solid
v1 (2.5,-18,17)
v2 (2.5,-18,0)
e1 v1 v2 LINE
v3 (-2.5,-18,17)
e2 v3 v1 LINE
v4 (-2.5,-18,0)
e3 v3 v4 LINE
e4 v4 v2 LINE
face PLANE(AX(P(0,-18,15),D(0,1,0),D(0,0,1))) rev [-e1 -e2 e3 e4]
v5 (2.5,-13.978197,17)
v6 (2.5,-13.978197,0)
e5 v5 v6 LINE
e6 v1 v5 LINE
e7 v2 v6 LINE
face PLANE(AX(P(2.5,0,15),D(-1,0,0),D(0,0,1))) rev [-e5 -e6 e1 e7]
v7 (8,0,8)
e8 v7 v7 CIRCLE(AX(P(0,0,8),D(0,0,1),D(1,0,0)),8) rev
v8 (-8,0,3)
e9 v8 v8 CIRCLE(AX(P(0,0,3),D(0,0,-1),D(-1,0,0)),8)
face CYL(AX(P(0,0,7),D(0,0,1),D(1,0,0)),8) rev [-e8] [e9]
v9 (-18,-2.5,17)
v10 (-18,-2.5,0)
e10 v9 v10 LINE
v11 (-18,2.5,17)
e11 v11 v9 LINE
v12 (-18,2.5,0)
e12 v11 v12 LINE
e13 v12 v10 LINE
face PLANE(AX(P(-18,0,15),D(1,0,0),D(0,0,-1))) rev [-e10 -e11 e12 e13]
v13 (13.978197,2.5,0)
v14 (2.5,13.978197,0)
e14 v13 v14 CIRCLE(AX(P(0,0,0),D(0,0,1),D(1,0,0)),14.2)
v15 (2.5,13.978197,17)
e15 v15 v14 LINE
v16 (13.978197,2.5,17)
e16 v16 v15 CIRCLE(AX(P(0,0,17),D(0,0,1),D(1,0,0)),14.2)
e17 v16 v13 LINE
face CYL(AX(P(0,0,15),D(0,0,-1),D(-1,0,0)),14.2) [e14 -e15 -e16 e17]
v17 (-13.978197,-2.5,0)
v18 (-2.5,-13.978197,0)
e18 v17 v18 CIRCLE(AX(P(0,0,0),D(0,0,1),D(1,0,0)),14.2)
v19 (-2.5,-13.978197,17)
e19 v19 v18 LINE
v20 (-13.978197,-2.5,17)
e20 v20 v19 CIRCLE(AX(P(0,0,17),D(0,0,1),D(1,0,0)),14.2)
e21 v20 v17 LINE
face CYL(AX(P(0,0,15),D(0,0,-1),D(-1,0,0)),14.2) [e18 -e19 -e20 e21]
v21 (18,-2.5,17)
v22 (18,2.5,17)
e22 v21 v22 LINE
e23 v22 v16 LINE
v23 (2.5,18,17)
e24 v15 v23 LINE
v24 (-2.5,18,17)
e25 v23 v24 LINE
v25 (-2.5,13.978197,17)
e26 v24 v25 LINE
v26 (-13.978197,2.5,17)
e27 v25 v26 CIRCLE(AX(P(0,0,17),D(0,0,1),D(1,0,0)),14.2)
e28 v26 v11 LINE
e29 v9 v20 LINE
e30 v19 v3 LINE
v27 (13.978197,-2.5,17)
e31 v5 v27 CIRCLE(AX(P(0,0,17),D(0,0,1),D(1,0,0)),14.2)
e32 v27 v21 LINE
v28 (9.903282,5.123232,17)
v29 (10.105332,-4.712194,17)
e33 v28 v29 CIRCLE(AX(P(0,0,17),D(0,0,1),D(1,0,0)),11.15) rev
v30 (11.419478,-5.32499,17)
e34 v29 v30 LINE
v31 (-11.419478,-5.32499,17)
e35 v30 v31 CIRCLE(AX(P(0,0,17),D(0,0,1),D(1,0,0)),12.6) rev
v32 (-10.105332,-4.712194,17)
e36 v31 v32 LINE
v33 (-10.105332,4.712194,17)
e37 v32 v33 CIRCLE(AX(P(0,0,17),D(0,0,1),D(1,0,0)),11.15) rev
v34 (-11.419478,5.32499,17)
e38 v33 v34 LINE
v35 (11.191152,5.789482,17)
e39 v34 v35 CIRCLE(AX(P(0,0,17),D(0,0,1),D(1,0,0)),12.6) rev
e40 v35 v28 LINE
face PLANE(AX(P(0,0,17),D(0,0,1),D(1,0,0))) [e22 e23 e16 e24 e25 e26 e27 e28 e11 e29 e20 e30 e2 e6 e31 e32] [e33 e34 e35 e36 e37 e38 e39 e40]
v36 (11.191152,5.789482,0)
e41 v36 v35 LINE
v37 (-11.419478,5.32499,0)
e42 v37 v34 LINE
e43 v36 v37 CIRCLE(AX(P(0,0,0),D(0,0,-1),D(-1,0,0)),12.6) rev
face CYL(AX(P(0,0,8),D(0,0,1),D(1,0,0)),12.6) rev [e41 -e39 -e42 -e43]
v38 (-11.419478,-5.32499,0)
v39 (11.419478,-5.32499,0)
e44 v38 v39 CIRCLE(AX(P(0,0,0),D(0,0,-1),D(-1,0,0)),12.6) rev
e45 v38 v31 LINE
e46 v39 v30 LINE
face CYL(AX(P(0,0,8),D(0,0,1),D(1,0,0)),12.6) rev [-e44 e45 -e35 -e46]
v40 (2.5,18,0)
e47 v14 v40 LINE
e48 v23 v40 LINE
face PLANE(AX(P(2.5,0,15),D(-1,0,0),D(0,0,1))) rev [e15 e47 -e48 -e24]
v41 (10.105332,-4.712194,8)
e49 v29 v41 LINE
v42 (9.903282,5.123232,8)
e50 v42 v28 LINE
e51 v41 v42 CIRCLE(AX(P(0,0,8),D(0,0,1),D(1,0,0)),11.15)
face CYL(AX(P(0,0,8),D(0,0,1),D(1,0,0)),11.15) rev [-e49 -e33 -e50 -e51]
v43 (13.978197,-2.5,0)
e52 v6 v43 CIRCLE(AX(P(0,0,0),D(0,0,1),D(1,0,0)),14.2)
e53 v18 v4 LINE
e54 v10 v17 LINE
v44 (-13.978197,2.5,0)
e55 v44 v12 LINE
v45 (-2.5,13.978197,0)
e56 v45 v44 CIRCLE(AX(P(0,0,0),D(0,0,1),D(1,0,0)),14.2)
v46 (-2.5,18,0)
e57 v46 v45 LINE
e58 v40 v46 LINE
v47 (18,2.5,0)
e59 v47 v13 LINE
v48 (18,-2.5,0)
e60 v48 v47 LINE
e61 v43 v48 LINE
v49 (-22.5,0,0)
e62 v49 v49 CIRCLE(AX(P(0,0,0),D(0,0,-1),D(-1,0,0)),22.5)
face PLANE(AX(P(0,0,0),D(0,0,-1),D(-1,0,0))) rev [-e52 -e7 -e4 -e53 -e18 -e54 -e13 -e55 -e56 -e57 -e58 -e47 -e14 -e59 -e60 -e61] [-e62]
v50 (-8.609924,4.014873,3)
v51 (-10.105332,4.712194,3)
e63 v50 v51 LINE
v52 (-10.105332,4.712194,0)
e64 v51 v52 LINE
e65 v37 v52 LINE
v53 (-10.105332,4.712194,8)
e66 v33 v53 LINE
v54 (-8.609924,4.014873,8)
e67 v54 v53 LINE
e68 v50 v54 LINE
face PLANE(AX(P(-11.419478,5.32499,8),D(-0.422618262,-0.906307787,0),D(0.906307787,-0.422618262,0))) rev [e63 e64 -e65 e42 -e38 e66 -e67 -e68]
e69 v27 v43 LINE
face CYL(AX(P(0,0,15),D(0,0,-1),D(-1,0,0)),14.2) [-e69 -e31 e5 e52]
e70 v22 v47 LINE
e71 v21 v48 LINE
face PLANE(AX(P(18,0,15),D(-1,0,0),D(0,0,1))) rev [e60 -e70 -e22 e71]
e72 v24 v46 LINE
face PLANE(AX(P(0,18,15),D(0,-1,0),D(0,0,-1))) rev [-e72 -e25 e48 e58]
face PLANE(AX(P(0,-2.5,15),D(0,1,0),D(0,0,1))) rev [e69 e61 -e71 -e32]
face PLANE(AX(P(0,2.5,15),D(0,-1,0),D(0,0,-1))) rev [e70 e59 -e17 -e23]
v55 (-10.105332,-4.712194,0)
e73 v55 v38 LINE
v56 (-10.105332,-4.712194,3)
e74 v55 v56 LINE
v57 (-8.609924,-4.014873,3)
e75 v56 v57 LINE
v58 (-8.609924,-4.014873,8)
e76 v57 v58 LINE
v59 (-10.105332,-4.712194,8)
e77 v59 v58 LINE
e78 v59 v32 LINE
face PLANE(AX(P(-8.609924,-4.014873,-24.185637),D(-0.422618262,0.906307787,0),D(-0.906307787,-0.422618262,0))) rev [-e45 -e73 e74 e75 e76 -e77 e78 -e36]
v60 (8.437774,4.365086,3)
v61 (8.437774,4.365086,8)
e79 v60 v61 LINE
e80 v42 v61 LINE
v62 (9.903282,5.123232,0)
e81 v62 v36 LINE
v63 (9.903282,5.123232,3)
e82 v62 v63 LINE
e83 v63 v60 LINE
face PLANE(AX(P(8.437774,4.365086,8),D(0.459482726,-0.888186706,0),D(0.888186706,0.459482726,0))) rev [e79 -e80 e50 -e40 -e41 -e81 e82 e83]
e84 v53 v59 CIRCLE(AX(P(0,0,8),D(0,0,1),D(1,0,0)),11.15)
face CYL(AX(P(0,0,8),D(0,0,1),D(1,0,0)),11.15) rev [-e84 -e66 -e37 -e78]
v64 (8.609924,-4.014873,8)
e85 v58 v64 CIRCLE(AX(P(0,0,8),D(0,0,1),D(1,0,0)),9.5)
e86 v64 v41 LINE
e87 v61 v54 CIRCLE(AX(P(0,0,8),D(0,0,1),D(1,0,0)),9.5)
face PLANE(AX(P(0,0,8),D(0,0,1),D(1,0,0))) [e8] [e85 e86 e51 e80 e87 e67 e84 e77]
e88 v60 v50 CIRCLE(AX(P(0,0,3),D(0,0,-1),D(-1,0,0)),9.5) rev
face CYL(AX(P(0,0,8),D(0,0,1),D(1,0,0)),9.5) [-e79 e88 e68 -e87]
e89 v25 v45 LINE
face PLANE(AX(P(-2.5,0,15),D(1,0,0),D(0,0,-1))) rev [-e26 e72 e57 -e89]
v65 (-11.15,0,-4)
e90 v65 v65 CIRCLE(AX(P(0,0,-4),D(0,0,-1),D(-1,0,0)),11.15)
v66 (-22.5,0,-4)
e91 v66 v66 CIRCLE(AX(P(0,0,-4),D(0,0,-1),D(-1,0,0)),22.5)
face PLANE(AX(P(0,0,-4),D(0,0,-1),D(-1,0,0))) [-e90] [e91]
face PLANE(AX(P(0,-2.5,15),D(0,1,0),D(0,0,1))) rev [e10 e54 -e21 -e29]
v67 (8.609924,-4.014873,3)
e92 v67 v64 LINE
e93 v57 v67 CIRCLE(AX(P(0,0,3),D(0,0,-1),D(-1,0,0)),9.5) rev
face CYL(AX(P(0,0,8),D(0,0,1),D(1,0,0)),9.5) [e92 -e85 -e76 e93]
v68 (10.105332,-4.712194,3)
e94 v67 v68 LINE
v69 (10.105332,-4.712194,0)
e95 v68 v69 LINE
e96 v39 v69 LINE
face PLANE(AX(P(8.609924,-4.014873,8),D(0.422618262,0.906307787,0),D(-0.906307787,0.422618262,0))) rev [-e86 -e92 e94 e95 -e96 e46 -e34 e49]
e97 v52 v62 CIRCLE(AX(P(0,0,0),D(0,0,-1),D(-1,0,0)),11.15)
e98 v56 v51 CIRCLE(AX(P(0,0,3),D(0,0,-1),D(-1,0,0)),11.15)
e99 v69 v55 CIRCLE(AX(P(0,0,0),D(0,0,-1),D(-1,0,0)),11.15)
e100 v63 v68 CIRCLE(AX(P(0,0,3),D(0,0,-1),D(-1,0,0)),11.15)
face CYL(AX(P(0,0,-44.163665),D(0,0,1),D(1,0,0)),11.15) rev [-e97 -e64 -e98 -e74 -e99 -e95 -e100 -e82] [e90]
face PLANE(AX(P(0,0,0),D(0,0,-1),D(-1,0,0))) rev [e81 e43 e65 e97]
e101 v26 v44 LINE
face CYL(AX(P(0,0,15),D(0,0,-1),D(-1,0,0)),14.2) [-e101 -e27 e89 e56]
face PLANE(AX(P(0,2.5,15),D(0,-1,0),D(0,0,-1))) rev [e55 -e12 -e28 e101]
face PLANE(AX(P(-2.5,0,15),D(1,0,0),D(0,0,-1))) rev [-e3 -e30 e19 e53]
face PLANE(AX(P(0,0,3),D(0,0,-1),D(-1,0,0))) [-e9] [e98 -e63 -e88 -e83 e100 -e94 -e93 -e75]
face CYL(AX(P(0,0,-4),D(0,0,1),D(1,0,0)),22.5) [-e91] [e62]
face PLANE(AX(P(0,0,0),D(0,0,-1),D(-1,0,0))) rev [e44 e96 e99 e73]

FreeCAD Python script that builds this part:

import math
import FreeCAD as App
import Part
import Sketcher
Q = App.Units.Quantity

doc = App.newDocument("Part")
params = doc.addObject("Spreadsheet::Sheet", "Params")
for row, (alias, value) in enumerate([
    ("sketch1_diameter", "22.3 mm"),
    ("sketch1_radius", "14.2 mm"),
    ("sketch1_width", "5 mm"),
    ("pad1_length", "15 mm"),
    ("sketch2_diameter", "16 mm"),
    ("sketch2_diameter2", "22.3 mm"),
    ("pad2_length", "8 mm"),
    ("sketch3_diameter", "45 mm"),
    ("sketch3_radius", "14.2 mm"),
    ("pad3_length", "4 mm"),
    ("sketch4_diameter", "28.4 mm"),
    ("sketch4_diameter2", "22.3 mm"),
    ("pad4_length", "4 mm"),
    ("sketch5_diameter", "16 mm"),
    ("sketch5_diameter2", "22.3 mm"),
    ("pad5_length", "4 mm"),
    ("sketch6_radius", "12.6 mm"),
    ("sketch6_radius2", "9.5 mm"),
    ("pocket1_length", "7 mm"),
    ("sketch7_radius", "9.5 mm"),
    ("sketch7_radius2", "12.6 mm"),
    ("pocket2_length", "8 mm"),
    ("sketch8_radius", "14.2 mm"),
    ("sketch8_width", "5 mm"),
    ("pocket3_length", "4 mm"),
    ("sketch9_radius", "12.6 mm"),
    ("sketch9_radius2", "9.5 mm"),
    ("pocket4_length", "11 mm"),
    ("sketch10_diameter", "22.3 mm"),
    ("pocket5_length", "3 mm"),
    ("sketch11_radius", "14.2 mm"),
    ("sketch11_radius2", "12.6 mm"),
    ("sketch11_width", "5 mm"),
    ("sketch11_radius3", "11.15 mm"),
    ("pad6_length", "6 mm"),
], start=1):
    params.set(f"A{row}", alias)
    params.set(f"B{row}", "=" + value)
    params.setAlias(f"B{row}", alias)

body = doc.addObject("PartDesign::Body", "Body")

sketch1 = body.newObject("Sketcher::SketchObject", "Sketch")
sketch1.AttachmentSupport = (doc.getObject("XY_Plane"), [""])
sketch1.MapMode = "FlatFace"
sketch1.addGeometry(Part.LineSegment(App.Vector(-2.5, 18, 0), App.Vector(-2.5, 14, 0)), False)
sketch1.addGeometry(Part.ArcOfCircle(Part.Circle(App.Vector(0, 0, 0), App.Vector(0, 0, 1), 14.2), math.radians(100), math.radians(170)), False)
sketch1.addGeometry(Part.LineSegment(App.Vector(-14, 2.5, 0), App.Vector(-18, 2.5, 0)), False)
sketch1.addGeometry(Part.LineSegment(App.Vector(-18, 2.5, 0), App.Vector(-18, -2.5, 0)), False)
sketch1.addGeometry(Part.LineSegment(App.Vector(-18, -2.5, 0), App.Vector(-14, -2.5, 0)), False)
sketch1.addGeometry(Part.ArcOfCircle(Part.Circle(App.Vector(0, 0, 0), App.Vector(0, 0, 1), 14.2), math.radians(-170), math.radians(-100)), False)
sketch1.addGeometry(Part.LineSegment(App.Vector(-2.5, -14, 0), App.Vector(-2.5, -18, 0)), False)
sketch1.addGeometry(Part.LineSegment(App.Vector(-2.5, -18, 0), App.Vector(2.5, -18, 0)), False)
sketch1.addGeometry(Part.LineSegment(App.Vector(2.5, -18, 0), App.Vector(2.5, -14, 0)), False)
sketch1.addGeometry(Part.ArcOfCircle(Part.Circle(App.Vector(0, 0, 0), App.Vector(0, 0, 1), 14.2), math.radians(-80), math.radians(-10)), False)
sketch1.addGeometry(Part.LineSegment(App.Vector(14, -2.5, 0), App.Vector(18, -2.5, 0)), False)
sketch1.addGeometry(Part.LineSegment(App.Vector(18, -2.5, 0), App.Vector(18, 2.5, 0)), False)
sketch1.addGeometry(Part.LineSegment(App.Vector(18, 2.5, 0), App.Vector(14, 2.5, 0)), False)
sketch1.addGeometry(Part.ArcOfCircle(Part.Circle(App.Vector(0, 0, 0), App.Vector(0, 0, 1), 14.2), math.radians(10), math.radians(80)), False)
sketch1.addGeometry(Part.LineSegment(App.Vector(2.5, 14, 0), App.Vector(2.5, 18, 0)), False)
sketch1.addGeometry(Part.LineSegment(App.Vector(2.5, 18, 0), App.Vector(-2.5, 18, 0)), False)
sketch1.addGeometry(Part.Circle(App.Vector(0, 0, 0), App.Vector(0, 0, 1), 11.2), False)
sketch1.addConstraint(Sketcher.Constraint("Coincident", 0, 2, 1, 1))
sketch1.addConstraint(Sketcher.Constraint("Coincident", 1, 2, 2, 1))
sketch1.addConstraint(Sketcher.Constraint("Coincident", 2, 2, 3, 1))
sketch1.addConstraint(Sketcher.Constraint("Coincident", 3, 2, 4, 1))
sketch1.addConstraint(Sketcher.Constraint("Coincident", 4, 2, 5, 1))
sketch1.addConstraint(Sketcher.Constraint("Coincident", 5, 2, 6, 1))
sketch1.addConstraint(Sketcher.Constraint("Coincident", 6, 2, 7, 1))
sketch1.addConstraint(Sketcher.Constraint("Coincident", 7, 2, 8, 1))
sketch1.addConstraint(Sketcher.Constraint("Coincident", 8, 2, 9, 1))
sketch1.addConstraint(Sketcher.Constraint("Coincident", 9, 2, 10, 1))
sketch1.addConstraint(Sketcher.Constraint("Coincident", 10, 2, 11, 1))
sketch1.addConstraint(Sketcher.Constraint("Coincident", 11, 2, 12, 1))
sketch1.addConstraint(Sketcher.Constraint("Coincident", 12, 2, 13, 1))
sketch1.addConstraint(Sketcher.Constraint("Coincident", 13, 2, 14, 1))
sketch1.addConstraint(Sketcher.Constraint("Coincident", 14, 2, 15, 1))
sketch1.addConstraint(Sketcher.Constraint("Coincident", 15, 2, 0, 1))
sketch1.addConstraint(Sketcher.Constraint("Vertical", 0))
sketch1.addConstraint(Sketcher.Constraint("Horizontal", 2))
sketch1.addConstraint(Sketcher.Constraint("Vertical", 3))
sketch1.addConstraint(Sketcher.Constraint("Horizontal", 4))
sketch1.addConstraint(Sketcher.Constraint("Vertical", 6))
sketch1.addConstraint(Sketcher.Constraint("Horizontal", 7))
sketch1.addConstraint(Sketcher.Constraint("Vertical", 8))
sketch1.addConstraint(Sketcher.Constraint("Horizontal", 10))
sketch1.addConstraint(Sketcher.Constraint("Vertical", 11))
sketch1.addConstraint(Sketcher.Constraint("Horizontal", 12))
sketch1.addConstraint(Sketcher.Constraint("Vertical", 14))
sketch1.addConstraint(Sketcher.Constraint("Horizontal", 15))
sketch1.addConstraint(Sketcher.Constraint("Coincident", 1, 3, -1, 1))
sketch1.addConstraint(Sketcher.Constraint("Coincident", 5, 3, -1, 1))
sketch1.addConstraint(Sketcher.Constraint("Coincident", 9, 3, -1, 1))
sketch1.addConstraint(Sketcher.Constraint("Coincident", 13, 3, -1, 1))
sketch1.addConstraint(Sketcher.Constraint("Coincident", 16, 3, -1, 1))
sketch1.addConstraint(Sketcher.Constraint("Equal", 1, 5))
sketch1.addConstraint(Sketcher.Constraint("Equal", 5, 9))
sketch1.addConstraint(Sketcher.Constraint("Equal", 9, 13))
sketch1.addConstraint(Sketcher.Constraint("Symmetric", 2, 2, 10, 2, -1, 1))
sketch1.addConstraint(Sketcher.Constraint("Symmetric", 6, 2, 14, 2, -1, 1))
sketch1.addConstraint(Sketcher.Constraint("Horizontal", 5, 2, 8, 2))
sketch1.addConstraint(Sketcher.Constraint("Horizontal", 4, 2, 9, 2))
sketch1.addConstraint(Sketcher.Constraint("Horizontal", 2, 2, 11, 2))
sketch1.addConstraint(Sketcher.Constraint("Horizontal", 0, 2, 13, 2))
sketch1.addConstraint(Sketcher.Constraint("Equal", 12, 0))
sketch1.addConstraint(Sketcher.Constraint("Equal", 15, 3))
sketch1.addConstraint(Sketcher.Constraint("Diameter", 16, 22.3))
sketch1.addConstraint(Sketcher.Constraint("Radius", 1, 14.2))
sketch1.addConstraint(Sketcher.Constraint("DistanceX", 7, 1, 7, 2, 5.0))
sketch1.addConstraint(Sketcher.Constraint("DistanceX", 2, 2, -1, 1, 18.0))
sketch1.setExpression("Constraints[44]", "Params.sketch1_diameter")
sketch1.setExpression("Constraints[45]", "Params.sketch1_radius")
sketch1.setExpression("Constraints[46]", "Params.sketch1_width")
pad1 = body.newObject("PartDesign::Pad", "Pad")
pad1.Profile = sketch1
pad1.setExpression("Length", "Params.pad1_length")

sketch2 = body.newObject("Sketcher::SketchObject", "Sketch001")
sketch2.AttachmentSupport = (doc.getObject("XY_Plane"), [""])
sketch2.MapMode = "FlatFace"
sketch2.AttachmentOffset = App.Placement(App.Vector(0, 0, 7), App.Rotation())
sketch2.addGeometry(Part.Circle(App.Vector(0, 0, 0), App.Vector(0, 0, 1), 11), False)
sketch2.addGeometry(Part.Circle(App.Vector(0, 0, 0), App.Vector(0, 0, 1), 8), False)
sketch2.addConstraint(Sketcher.Constraint("Coincident", 0, 3, -1, 1))
sketch2.addConstraint(Sketcher.Constraint("Coincident", 1, 3, -1, 1))
sketch2.addConstraint(Sketcher.Constraint("Diameter", 1, 16.0))
sketch2.addConstraint(Sketcher.Constraint("Diameter", 0, 22.3))
sketch2.setExpression("Constraints[2]", "Params.sketch2_diameter")
sketch2.setExpression("Constraints[3]", "Params.sketch2_diameter2")
pad2 = body.newObject("PartDesign::Pad", "Pad001")
pad2.Profile = sketch2
pad2.setExpression("Length", "Params.pad2_length")
body2 = doc.addObject("PartDesign::Body", "Body001")

sketch3 = body2.newObject("Sketcher::SketchObject", "Sketch002")
sketch3.AttachmentSupport = (doc.getObject("XY_Plane001"), [""])
sketch3.MapMode = "FlatFace"
sketch3.addGeometry(Part.Circle(App.Vector(0, 0, 0), App.Vector(0, 0, 1), 22), False)
sketch3.addGeometry(Part.ArcOfCircle(Part.Circle(App.Vector(0, 0, 0), App.Vector(0, 0, 1), 14), math.radians(10), math.radians(80)), False)
sketch3.addGeometry(Part.ArcOfCircle(Part.Circle(App.Vector(0, 0, 0), App.Vector(0, 0, 1), 14), math.radians(80), math.radians(100)), False)
sketch3.addGeometry(Part.ArcOfCircle(Part.Circle(App.Vector(0, 0, 0), App.Vector(0, 0, 1), 14), math.radians(100), math.radians(170)), False)
sketch3.addGeometry(Part.ArcOfCircle(Part.Circle(App.Vector(0, 0, 0), App.Vector(0, 0, 1), 14), math.radians(170), math.radians(190)), False)
sketch3.addGeometry(Part.ArcOfCircle(Part.Circle(App.Vector(0, 0, 0), App.Vector(0, 0, 1), 14), math.radians(-170), math.radians(-100)), False)
sketch3.addGeometry(Part.ArcOfCircle(Part.Circle(App.Vector(0, 0, 0), App.Vector(0, 0, 1), 14), math.radians(-100), math.radians(-80)), False)
sketch3.addGeometry(Part.ArcOfCircle(Part.Circle(App.Vector(0, 0, 0), App.Vector(0, 0, 1), 14), math.radians(-80), math.radians(-10)), False)
sketch3.addGeometry(Part.ArcOfCircle(Part.Circle(App.Vector(0, 0, 0), App.Vector(0, 0, 1), 14), math.radians(-10), math.radians(10)), False)
sketch3.addConstraint(Sketcher.Constraint("Tangent", 1, 2, 2, 1))
sketch3.addConstraint(Sketcher.Constraint("Tangent", 2, 2, 3, 1))
sketch3.addConstraint(Sketcher.Constraint("Tangent", 3, 2, 4, 1))
sketch3.addConstraint(Sketcher.Constraint("Tangent", 4, 2, 5, 1))
sketch3.addConstraint(Sketcher.Constraint("Tangent", 5, 2, 6, 1))
sketch3.addConstraint(Sketcher.Constraint("Tangent", 6, 2, 7, 1))
sketch3.addConstraint(Sketcher.Constraint("Tangent", 7, 2, 8, 1))
sketch3.addConstraint(Sketcher.Constraint("Tangent", 8, 2, 1, 1))
sketch3.addConstraint(Sketcher.Constraint("Coincident", 0, 3, -1, 1))
sketch3.addConstraint(Sketcher.Constraint("Coincident", 1, 3, -1, 1))
sketch3.addConstraint(Sketcher.Constraint("Coincident", 3, 3, -1, 1))
sketch3.addConstraint(Sketcher.Constraint("Coincident", 5, 3, -1, 1))
sketch3.addConstraint(Sketcher.Constraint("Equal", 5, 6))
sketch3.addConstraint(Sketcher.Constraint("Horizontal", 1, 2, 2, 2))
sketch3.addConstraint(Sketcher.Constraint("Horizontal", 5, 2, 6, 2))
sketch3.addConstraint(Sketcher.Constraint("Horizontal", 4, 2, 7, 2))
sketch3.addConstraint(Sketcher.Constraint("Horizontal", 3, 2, 8, 2))
sketch3.addConstraint(Sketcher.Constraint("Vertical", 3, 2, 4, 2))
sketch3.addConstraint(Sketcher.Constraint("Vertical", 2, 2, 5, 2))
sketch3.addConstraint(Sketcher.Constraint("Diameter", 0, 45.0))
sketch3.addConstraint(Sketcher.Constraint("Radius", 1, 14.2))
sketch3.addConstraint(Sketcher.Constraint("DistanceX", 2, 2, 1, 2, 5.0))
sketch3.addConstraint(Sketcher.Constraint("DistanceY", 4, 2, 3, 2, 5.0))
sketch3.setExpression("Constraints[19]", "Params.sketch3_diameter")
sketch3.setExpression("Constraints[20]", "Params.sketch3_radius")
pad3 = body2.newObject("PartDesign::Pad", "Pad002")
pad3.Profile = sketch3
pad3.setExpression("Length", "Params.pad3_length")
pad3.Reversed = True
doc.recompute()

boolean = body.newObject("PartDesign::Boolean", "Boolean")
boolean.Type = "Fuse"
boolean.addObjects([body2])

sketch4 = body.newObject("Sketcher::SketchObject", "Sketch003")
sketch4.AttachmentSupport = (doc.getObject("XY_Plane"), [""])
sketch4.MapMode = "FlatFace"
sketch4.AttachmentOffset = App.Placement(App.Vector(0, 0, -4), App.Rotation())
sketch4.addGeometry(Part.Circle(App.Vector(0, 0, 0), App.Vector(0, 0, 1), 14), False)
sketch4.addGeometry(Part.Circle(App.Vector(0, 0, 0), App.Vector(0, 0, 1), 11), False)
sketch4.addConstraint(Sketcher.Constraint("Coincident", 0, 3, -1, 1))
sketch4.addConstraint(Sketcher.Constraint("Coincident", 1, 3, -1, 1))
sketch4.addConstraint(Sketcher.Constraint("Diameter", 0, 28.4))
sketch4.addConstraint(Sketcher.Constraint("Diameter", 1, 22.3))
sketch4.setExpression("Constraints[2]", "Params.sketch4_diameter")
sketch4.setExpression("Constraints[3]", "Params.sketch4_diameter2")
pad4 = body.newObject("PartDesign::Pad", "Pad003")
pad4.Profile = sketch4
pad4.setExpression("Length", "Params.pad4_length")

sketch5 = body.newObject("Sketcher::SketchObject", "Sketch004")
sketch5.AttachmentSupport = (doc.getObject("XY_Plane"), [""])
sketch5.MapMode = "FlatFace"
sketch5.AttachmentOffset = App.Placement(App.Vector(0, 0, 3), App.Rotation())
sketch5.addGeometry(Part.Circle(App.Vector(0, 0, 0), App.Vector(0, 0, 1), 11), False)
sketch5.addGeometry(Part.Circle(App.Vector(0, 0, 0), App.Vector(0, 0, 1), 8), False)
sketch5.addConstraint(Sketcher.Constraint("Coincident", 0, 3, -1, 1))
sketch5.addConstraint(Sketcher.Constraint("Coincident", 1, 3, -1, 1))
sketch5.addConstraint(Sketcher.Constraint("Diameter", 1, 16.0))
sketch5.addConstraint(Sketcher.Constraint("Diameter", 0, 22.3))
sketch5.setExpression("Constraints[2]", "Params.sketch5_diameter")
sketch5.setExpression("Constraints[3]", "Params.sketch5_diameter2")
pad5 = body.newObject("PartDesign::Pad", "Pad004")
pad5.Profile = sketch5
pad5.setExpression("Length", "Params.pad5_length")

sketch6 = body.newObject("Sketcher::SketchObject", "Sketch005")
sketch6.AttachmentSupport = (doc.getObject("XY_Plane"), [""])
sketch6.MapMode = "FlatFace"
sketch6.AttachmentOffset = App.Placement(App.Vector(0, 0, 15), App.Rotation())
sketch6.addGeometry(Part.LineSegment(App.Vector(-8.4, -4.4, 0), App.Vector(-11.2, -5.8, 0)), False)
sketch6.addGeometry(Part.ArcOfCircle(Part.Circle(App.Vector(0, 0, 0), App.Vector(0, 0, 1), 12.6), math.radians(-153), math.radians(-25)), False)
sketch6.addGeometry(Part.LineSegment(App.Vector(11.4, -5.3, 0), App.Vector(8.6, -4, 0)), False)
sketch6.addGeometry(Part.ArcOfCircle(Part.Circle(App.Vector(0, 0, 0), App.Vector(0, 0, 1), 9.5), math.radians(-153), math.radians(-25)), False)
sketch6.addGeometry(Part.LineSegment(App.Vector(-11.4, 5.3, 0), App.Vector(-8.6, 4, 0)), False)
sketch6.addGeometry(Part.ArcOfCircle(Part.Circle(App.Vector(0, 0, 0), App.Vector(0, 0, 1), 9.5), math.radians(27), math.radians(155)), False)
sketch6.addGeometry(Part.LineSegment(App.Vector(8.4, 4.4, 0), App.Vector(11.2, 5.8, 0)), False)
sketch6.addGeometry(Part.ArcOfCircle(Part.Circle(App.Vector(0, 0, 0), App.Vector(0, 0, 1), 12.6), math.radians(27), math.radians(155)), False)
sketch6.addConstraint(Sketcher.Constraint("Coincident", 0, 2, 1, 1))
sketch6.addConstraint(Sketcher.Constraint("Coincident", 1, 2, 2, 1))
sketch6.addConstraint(Sketcher.Constraint("Coincident", 2, 2, 3, 2))
sketch6.addConstraint(Sketcher.Constraint("Coincident", 3, 1, 0, 1))
sketch6.addConstraint(Sketcher.Constraint("Coincident", 4, 2, 5, 2))
sketch6.addConstraint(Sketcher.Constraint("Coincident", 5, 1, 6, 1))
sketch6.addConstraint(Sketcher.Constraint("Coincident", 6, 2, 7, 1))
sketch6.addConstraint(Sketcher.Constraint("Coincident", 7, 2, 4, 1))
sketch6.addConstraint(Sketcher.Constraint("Coincident", 1, 3, -1, 1))
sketch6.addConstraint(Sketcher.Constraint("Coincident", 3, 3, -1, 1))
sketch6.addConstraint(Sketcher.Constraint("Coincident", 5, 3, -1, 1))
sketch6.addConstraint(Sketcher.Constraint("Coincident", 7, 3, -1, 1))
sketch6.addConstraint(Sketcher.Constraint("Equal", 3, 5))
sketch6.addConstraint(Sketcher.Constraint("Equal", 1, 7))
sketch6.addConstraint(Sketcher.Constraint("Parallel", 2, 4))
sketch6.addConstraint(Sketcher.Constraint("Parallel", 0, 6))
sketch6.addConstraint(Sketcher.Constraint("Radius", 1, 12.6))
sketch6.addConstraint(Sketcher.Constraint("Radius", 3, 9.5))
sketch6.addConstraint(Sketcher.Constraint("Angle", 2, Q("155 deg")))
sketch6.addConstraint(Sketcher.Constraint("DistanceX", -1, 1, 1, 2, 11.419478))
sketch6.addConstraint(Sketcher.Constraint("DistanceX", 7, 2, -1, 1, 11.419478))
sketch6.addConstraint(Sketcher.Constraint("DistanceX", 0, 2, 1, 2, 22.610631))
sketch6.addConstraint(Sketcher.Constraint("DistanceX", 0, 2, 3, 1, 2.753379))
sketch6.addConstraint(Sketcher.Constraint("DistanceX", 5, 1, 2, 2, 0.17215))
sketch6.setExpression("Constraints[16]", "Params.sketch6_radius")
sketch6.setExpression("Constraints[17]", "Params.sketch6_radius2")
pocket1 = body.newObject("PartDesign::Pocket", "Pocket")
pocket1.Profile = sketch6
pocket1.setExpression("Length", "Params.pocket1_length")

sketch7 = body.newObject("Sketcher::SketchObject", "Sketch006")
sketch7.AttachmentSupport = (doc.getObject("XY_Plane"), [""])
sketch7.MapMode = "FlatFace"
sketch7.AttachmentOffset = App.Placement(App.Vector(0, 0, 8), App.Rotation())
sketch7.addGeometry(Part.LineSegment(App.Vector(11.4, -5.3, 0), App.Vector(8.6, -4, 0)), False)
sketch7.addGeometry(Part.ArcOfCircle(Part.Circle(App.Vector(0, 0, 0), App.Vector(0, 0, 1), 9.5), math.radians(-153), math.radians(-25)), False)
sketch7.addGeometry(Part.LineSegment(App.Vector(-8.4, -4.4, 0), App.Vector(-11.2, -5.8, 0)), False)
sketch7.addGeometry(Part.ArcOfCircle(Part.Circle(App.Vector(0, 0, 0), App.Vector(0, 0, 1), 12.6), math.radians(-153), math.radians(-25)), False)
sketch7.addGeometry(Part.LineSegment(App.Vector(-11.4, 5.3, 0), App.Vector(-8.6, 4, 0)), False)
sketch7.addGeometry(Part.ArcOfCircle(Part.Circle(App.Vector(0, 0, 0), App.Vector(0, 0, 1), 9.5), math.radians(27), math.radians(155)), False)
sketch7.addGeometry(Part.LineSegment(App.Vector(8.4, 4.4, 0), App.Vector(11.2, 5.8, 0)), False)
sketch7.addGeometry(Part.ArcOfCircle(Part.Circle(App.Vector(0, 0, 0), App.Vector(0, 0, 1), 12.6), math.radians(27), math.radians(155)), False)
sketch7.addConstraint(Sketcher.Constraint("Coincident", 0, 2, 1, 2))
sketch7.addConstraint(Sketcher.Constraint("Coincident", 1, 1, 2, 1))
sketch7.addConstraint(Sketcher.Constraint("Coincident", 2, 2, 3, 1))
sketch7.addConstraint(Sketcher.Constraint("Coincident", 3, 2, 0, 1))
sketch7.addConstraint(Sketcher.Constraint("Coincident", 4, 2, 5, 2))
sketch7.addConstraint(Sketcher.Constraint("Coincident", 5, 1, 6, 1))
sketch7.addConstraint(Sketcher.Constraint("Coincident", 6, 2, 7, 1))
sketch7.addConstraint(Sketcher.Constraint("Coincident", 7, 2, 4, 1))
sketch7.addConstraint(Sketcher.Constraint("Coincident", 1, 3, -1, 1))
sketch7.addConstraint(Sketcher.Constraint("Coincident", 3, 3, -1, 1))
sketch7.addConstraint(Sketcher.Constraint("Coincident", 5, 3, -1, 1))
sketch7.addConstraint(Sketcher.Constraint("Coincident", 7, 3, -1, 1))
sketch7.addConstraint(Sketcher.Constraint("Equal", 1, 5))
sketch7.addConstraint(Sketcher.Constraint("Equal", 3, 7))
sketch7.addConstraint(Sketcher.Constraint("Parallel", 0, 4))
sketch7.addConstraint(Sketcher.Constraint("Parallel", 2, 6))
sketch7.addConstraint(Sketcher.Constraint("Radius", 1, 9.5))
sketch7.addConstraint(Sketcher.Constraint("Radius", 3, 12.6))
sketch7.addConstraint(Sketcher.Constraint("Angle", 0, Q("155 deg")))
sketch7.addConstraint(Sketcher.Constraint("DistanceX", -1, 1, 3, 2, 11.419478))
sketch7.addConstraint(Sketcher.Constraint("DistanceX", 7, 2, -1, 1, 11.419478))
sketch7.addConstraint(Sketcher.Constraint("DistanceX", 2, 2, 1, 1, 2.753379))
sketch7.addConstraint(Sketcher.Constraint("DistanceX", 4, 2, 1, 1, 0.17215))
sketch7.addConstraint(Sketcher.Constraint("DistanceX", 5, 1, 0, 2, 0.17215))
sketch7.setExpression("Constraints[16]", "Params.sketch7_radius")
sketch7.setExpression("Constraints[17]", "Params.sketch7_radius2")
pocket2 = body.newObject("PartDesign::Pocket", "Pocket001")
pocket2.Profile = sketch7
pocket2.setExpression("Length", "Params.pocket2_length")

sketch8 = body.newObject("Sketcher::SketchObject", "Sketch007")
sketch8.AttachmentSupport = (doc.getObject("XY_Plane"), [""])
sketch8.MapMode = "FlatFace"
sketch8.AttachmentOffset = App.Placement(App.Vector(0, 0, 11), App.Rotation())
sketch8.addGeometry(Part.LineSegment(App.Vector(-2.5, 18, 0), App.Vector(-2.5, 14, 0)), False)
sketch8.addGeometry(Part.ArcOfCircle(Part.Circle(App.Vector(0, 0, 0), App.Vector(0, 0, 1), 14.2), math.radians(100), math.radians(170)), False)
sketch8.addGeometry(Part.LineSegment(App.Vector(-14, 2.5, 0), App.Vector(-18, 2.5, 0)), False)
sketch8.addGeometry(Part.LineSegment(App.Vector(-18, 2.5, 0), App.Vector(-18, -2.5, 0)), False)
sketch8.addGeometry(Part.LineSegment(App.Vector(-18, -2.5, 0), App.Vector(-14, -2.5, 0)), False)
sketch8.addGeometry(Part.ArcOfCircle(Part.Circle(App.Vector(0, 0, 0), App.Vector(0, 0, 1), 14.2), math.radians(-170), math.radians(-100)), False)
sketch8.addGeometry(Part.LineSegment(App.Vector(-2.5, -14, 0), App.Vector(-2.5, -18, 0)), False)
sketch8.addGeometry(Part.LineSegment(App.Vector(-2.5, -18, 0), App.Vector(2.5, -18, 0)), False)
sketch8.addGeometry(Part.LineSegment(App.Vector(2.5, -18, 0), App.Vector(2.5, -14, 0)), False)
sketch8.addGeometry(Part.ArcOfCircle(Part.Circle(App.Vector(0, 0, 0), App.Vector(0, 0, 1), 14.2), math.radians(-80), math.radians(-10)), False)
sketch8.addGeometry(Part.LineSegment(App.Vector(14, -2.5, 0), App.Vector(18, -2.5, 0)), False)
sketch8.addGeometry(Part.LineSegment(App.Vector(18, -2.5, 0), App.Vector(18, 2.5, 0)), False)
sketch8.addGeometry(Part.LineSegment(App.Vector(18, 2.5, 0), App.Vector(14, 2.5, 0)), False)
sketch8.addGeometry(Part.ArcOfCircle(Part.Circle(App.Vector(0, 0, 0), App.Vector(0, 0, 1), 14.2), math.radians(10), math.radians(80)), False)
sketch8.addGeometry(Part.LineSegment(App.Vector(2.5, 14, 0), App.Vector(2.5, 18, 0)), False)
sketch8.addGeometry(Part.LineSegment(App.Vector(2.5, 18, 0), App.Vector(-2.5, 18, 0)), False)
sketch8.addConstraint(Sketcher.Constraint("Coincident", 0, 2, 1, 1))
sketch8.addConstraint(Sketcher.Constraint("Coincident", 1, 2, 2, 1))
sketch8.addConstraint(Sketcher.Constraint("Coincident", 2, 2, 3, 1))
sketch8.addConstraint(Sketcher.Constraint("Coincident", 3, 2, 4, 1))
sketch8.addConstraint(Sketcher.Constraint("Coincident", 4, 2, 5, 1))
sketch8.addConstraint(Sketcher.Constraint("Coincident", 5, 2, 6, 1))
sketch8.addConstraint(Sketcher.Constraint("Coincident", 6, 2, 7, 1))
sketch8.addConstraint(Sketcher.Constraint("Coincident", 7, 2, 8, 1))
sketch8.addConstraint(Sketcher.Constraint("Coincident", 8, 2, 9, 1))
sketch8.addConstraint(Sketcher.Constraint("Coincident", 9, 2, 10, 1))
sketch8.addConstraint(Sketcher.Constraint("Coincident", 10, 2, 11, 1))
sketch8.addConstraint(Sketcher.Constraint("Coincident", 11, 2, 12, 1))
sketch8.addConstraint(Sketcher.Constraint("Coincident", 12, 2, 13, 1))
sketch8.addConstraint(Sketcher.Constraint("Coincident", 13, 2, 14, 1))
sketch8.addConstraint(Sketcher.Constraint("Coincident", 14, 2, 15, 1))
sketch8.addConstraint(Sketcher.Constraint("Coincident", 15, 2, 0, 1))
sketch8.addConstraint(Sketcher.Constraint("Vertical", 0))
sketch8.addConstraint(Sketcher.Constraint("Horizontal", 2))
sketch8.addConstraint(Sketcher.Constraint("Vertical", 3))
sketch8.addConstraint(Sketcher.Constraint("Horizontal", 4))
sketch8.addConstraint(Sketcher.Constraint("Vertical", 6))
sketch8.addConstraint(Sketcher.Constraint("Horizontal", 7))
sketch8.addConstraint(Sketcher.Constraint("Vertical", 8))
sketch8.addConstraint(Sketcher.Constraint("Horizontal", 10))
sketch8.addConstraint(Sketcher.Constraint("Vertical", 11))
sketch8.addConstraint(Sketcher.Constraint("Horizontal", 12))
sketch8.addConstraint(Sketcher.Constraint("Vertical", 14))
sketch8.addConstraint(Sketcher.Constraint("Horizontal", 15))
sketch8.addConstraint(Sketcher.Constraint("Coincident", 1, 3, -1, 1))
sketch8.addConstraint(Sketcher.Constraint("Coincident", 5, 3, -1, 1))
sketch8.addConstraint(Sketcher.Constraint("Coincident", 9, 3, -1, 1))
sketch8.addConstraint(Sketcher.Constraint("Coincident", 13, 3, -1, 1))
sketch8.addConstraint(Sketcher.Constraint("Equal", 1, 5))
sketch8.addConstraint(Sketcher.Constraint("Equal", 5, 9))
sketch8.addConstraint(Sketcher.Constraint("Equal", 9, 13))
sketch8.addConstraint(Sketcher.Constraint("Symmetric", 2, 2, 10, 2, -1, 1))
sketch8.addConstraint(Sketcher.Constraint("Symmetric", 6, 2, 14, 2, -1, 1))
sketch8.addConstraint(Sketcher.Constraint("Horizontal", 5, 2, 8, 2))
sketch8.addConstraint(Sketcher.Constraint("Horizontal", 4, 2, 9, 2))
sketch8.addConstraint(Sketcher.Constraint("Horizontal", 2, 2, 11, 2))
sketch8.addConstraint(Sketcher.Constraint("Horizontal", 0, 2, 13, 2))
sketch8.addConstraint(Sketcher.Constraint("Equal", 12, 0))
sketch8.addConstraint(Sketcher.Constraint("Equal", 15, 3))
sketch8.addConstraint(Sketcher.Constraint("Radius", 1, 14.2))
sketch8.addConstraint(Sketcher.Constraint("DistanceX", 7, 1, 7, 2, 5.0))
sketch8.addConstraint(Sketcher.Constraint("DistanceX", 2, 2, -1, 1, 18.0))
sketch8.setExpression("Constraints[43]", "Params.sketch8_radius")
sketch8.setExpression("Constraints[44]", "Params.sketch8_width")
pocket3 = body.newObject("PartDesign::Pocket", "Pocket002")
pocket3.Profile = sketch8
pocket3.setExpression("Length", "Params.pocket3_length")
pocket3.Reversed = True

sketch9 = body.newObject("Sketcher::SketchObject", "Sketch008")
sketch9.AttachmentSupport = (doc.getObject("XY_Plane"), [""])
sketch9.MapMode = "FlatFace"
sketch9.addGeometry(Part.LineSegment(App.Vector(8.44, 4.37, 0), App.Vector(11.19, 5.79, 0)), False)
sketch9.addGeometry(Part.ArcOfCircle(Part.Circle(App.Vector(0, 0, 0), App.Vector(0, 0, 1), 12.6), math.radians(27), math.radians(155)), False)
sketch9.addGeometry(Part.LineSegment(App.Vector(-11.42, 5.32, 0), App.Vector(-8.61, 4.01, 0)), False)
sketch9.addGeometry(Part.ArcOfCircle(Part.Circle(App.Vector(0, 0, 0), App.Vector(0, 0, 1), 9.5), math.radians(27), math.radians(155)), False)
sketch9.addGeometry(Part.LineSegment(App.Vector(-8.61, -4.01, 0), App.Vector(-11.42, -5.32, 0)), False)
sketch9.addGeometry(Part.ArcOfCircle(Part.Circle(App.Vector(0, 0, 0), App.Vector(0, 0, 1), 12.6), math.radians(-155), math.radians(-152.65)), False)
sketch9.addGeometry(Part.LineSegment(App.Vector(-11.19, -5.79, 0), App.Vector(-8.44, -4.37, 0)), False)
sketch9.addGeometry(Part.ArcOfCircle(Part.Circle(App.Vector(0, 0, 0), App.Vector(0, 0, 1), 9.5), math.radians(-155), math.radians(-152.65)), False)
sketch9.addConstraint(Sketcher.Constraint("Coincident", 0, 2, 1, 1))
sketch9.addConstraint(Sketcher.Constraint("Coincident", 1, 2, 2, 1))
sketch9.addConstraint(Sketcher.Constraint("Coincident", 2, 2, 3, 2))
sketch9.addConstraint(Sketcher.Constraint("Coincident", 3, 1, 0, 1))
sketch9.addConstraint(Sketcher.Constraint("Coincident", 4, 2, 5, 1))
sketch9.addConstraint(Sketcher.Constraint("Coincident", 5, 2, 6, 1))
sketch9.addConstraint(Sketcher.Constraint("Coincident", 6, 2, 7, 2))
sketch9.addConstraint(Sketcher.Constraint("Coincident", 7, 1, 4, 1))
sketch9.addConstraint(Sketcher.Constraint("Coincident", 1, 3, -1, 1))
sketch9.addConstraint(Sketcher.Constraint("Coincident", 3, 3, -1, 1))
sketch9.addConstraint(Sketcher.Constraint("Coincident", 5, 3, -1, 1))
sketch9.addConstraint(Sketcher.Constraint("Coincident", 7, 3, -1, 1))
sketch9.addConstraint(Sketcher.Constraint("Equal", 1, 5))
sketch9.addConstraint(Sketcher.Constraint("Equal", 3, 7))
sketch9.addConstraint(Sketcher.Constraint("Parallel", 0, 6))
sketch9.addConstraint(Sketcher.Constraint("Vertical", 1, 2, 4, 2))
sketch9.addConstraint(Sketcher.Constraint("Vertical", 2, 2, 7, 1))
sketch9.addConstraint(Sketcher.Constraint("Radius", 1, 12.6))
sketch9.addConstraint(Sketcher.Constraint("Radius", 3, 9.5))
sketch9.addConstraint(Sketcher.Constraint("Angle", 2, Q("-25 deg")))
sketch9.addConstraint(Sketcher.Constraint("DistanceX", 1, 2, -1, 1, 11.419478))
sketch9.addConstraint(Sketcher.Constraint("DistanceX", 7, 3, 0, 2, 11.191151))
sketch9.addConstraint(Sketcher.Constraint("DistanceX", 3, 1, 0, 2, 2.753379))
sketch9.addConstraint(Sketcher.Constraint("DistanceX", 5, 2, 2, 2, 2.581229))
sketch9.setExpression("Constraints[17]", "Params.sketch9_radius")
sketch9.setExpression("Constraints[18]", "Params.sketch9_radius2")
pocket4 = body.newObject("PartDesign::Pocket", "Pocket003")
pocket4.Profile = sketch9
pocket4.setExpression("Length", "Params.pocket4_length")
pocket4.Reversed = True

sketch10 = body.newObject("Sketcher::SketchObject", "Sketch009")
sketch10.AttachmentSupport = (doc.getObject("XY_Plane"), [""])
sketch10.MapMode = "FlatFace"
sketch10.AttachmentOffset = App.Placement(App.Vector(0, 0, 8), App.Rotation())
sketch10.addGeometry(Part.Circle(App.Vector(0, 0, 0), App.Vector(0, 0, 1), 11), False)
sketch10.addConstraint(Sketcher.Constraint("Coincident", 0, 3, -1, 1))
sketch10.addConstraint(Sketcher.Constraint("Diameter", 0, 22.3))
sketch10.setExpression("Constraints[1]", "Params.sketch10_diameter")
pocket5 = body.newObject("PartDesign::Pocket", "Pocket004")
pocket5.Profile = sketch10
pocket5.setExpression("Length", "Params.pocket5_length")
pocket5.Reversed = True

sketch11 = body.newObject("Sketcher::SketchObject", "Sketch010")
sketch11.AttachmentSupport = (doc.getObject("XY_Plane"), [""])
sketch11.MapMode = "FlatFace"
sketch11.AttachmentOffset = App.Placement(App.Vector(0, 0, 11), App.Rotation())
sketch11.addGeometry(Part.LineSegment(App.Vector(2.5, 14, 0), App.Vector(2.5, 18, 0)), False)
sketch11.addGeometry(Part.LineSegment(App.Vector(2.5, 18, 0), App.Vector(-2.5, 18, 0)), False)
sketch11.addGeometry(Part.LineSegment(App.Vector(-2.5, 18, 0), App.Vector(-2.5, 14, 0)), False)
sketch11.addGeometry(Part.ArcOfCircle(Part.Circle(App.Vector(0, 0, 0), App.Vector(0, 0, 1), 14.2), math.radians(100), math.radians(170)), False)
sketch11.addGeometry(Part.LineSegment(App.Vector(-14, 2.5, 0), App.Vector(-18, 2.5, 0)), False)
sketch11.addGeometry(Part.LineSegment(App.Vector(-18, 2.5, 0), App.Vector(-18, -2.5, 0)), False)
sketch11.addGeometry(Part.LineSegment(App.Vector(-18, -2.5, 0), App.Vector(-14, -2.5, 0)), False)
sketch11.addGeometry(Part.ArcOfCircle(Part.Circle(App.Vector(0, 0, 0), App.Vector(0, 0, 1), 14.2), math.radians(-170), math.radians(-100)), False)
sketch11.addGeometry(Part.LineSegment(App.Vector(-2.5, -14, 0), App.Vector(-2.5, -18, 0)), False)
sketch11.addGeometry(Part.LineSegment(App.Vector(-2.5, -18, 0), App.Vector(2.5, -18, 0)), False)
sketch11.addGeometry(Part.LineSegment(App.Vector(2.5, -18, 0), App.Vector(2.5, -14, 0)), False)
sketch11.addGeometry(Part.ArcOfCircle(Part.Circle(App.Vector(0, 0, 0), App.Vector(0, 0, 1), 14.2), math.radians(-80), math.radians(-10)), False)
sketch11.addGeometry(Part.LineSegment(App.Vector(14, -2.5, 0), App.Vector(18, -2.5, 0)), False)
sketch11.addGeometry(Part.LineSegment(App.Vector(18, -2.5, 0), App.Vector(18, 2.5, 0)), False)
sketch11.addGeometry(Part.LineSegment(App.Vector(18, 2.5, 0), App.Vector(14, 2.5, 0)), False)
sketch11.addGeometry(Part.ArcOfCircle(Part.Circle(App.Vector(0, 0, 0), App.Vector(0, 0, 1), 14.2), math.radians(10), math.radians(80)), False)
sketch11.addGeometry(Part.ArcOfCircle(Part.Circle(App.Vector(0, 0, 0), App.Vector(0, 0, 1), 12.6), math.radians(-155), math.radians(-25)), False)
sketch11.addGeometry(Part.LineSegment(App.Vector(-11.4, -5.3, 0), App.Vector(-10.1, -4.7, 0)), False)
sketch11.addGeometry(Part.ArcOfCircle(Part.Circle(App.Vector(0, 0, 0), App.Vector(0, 0, 1), 11.1), math.radians(155), math.radians(205)), False)
sketch11.addGeometry(Part.LineSegment(App.Vector(-10.1, 4.7, 0), App.Vector(-11.4, 5.3, 0)), False)
sketch11.addGeometry(Part.ArcOfCircle(Part.Circle(App.Vector(0, 0, 0), App.Vector(0, 0, 1), 12.6), math.radians(27), math.radians(155)), False)
sketch11.addGeometry(Part.LineSegment(App.Vector(11.2, 5.8, 0), App.Vector(9.9, 5.1, 0)), False)
sketch11.addGeometry(Part.ArcOfCircle(Part.Circle(App.Vector(0, 0, 0), App.Vector(0, 0, 1), 11.1), math.radians(-25), math.radians(27)), False)
sketch11.addGeometry(Part.LineSegment(App.Vector(10.1, -4.7, 0), App.Vector(11.4, -5.3, 0)), False)
sketch11.addConstraint(Sketcher.Constraint("Coincident", 0, 2, 1, 1))
sketch11.addConstraint(Sketcher.Constraint("Coincident", 1, 2, 2, 1))
sketch11.addConstraint(Sketcher.Constraint("Coincident", 2, 2, 3, 1))
sketch11.addConstraint(Sketcher.Constraint("Coincident", 3, 2, 4, 1))
sketch11.addConstraint(Sketcher.Constraint("Coincident", 4, 2, 5, 1))
sketch11.addConstraint(Sketcher.Constraint("Coincident", 5, 2, 6, 1))
sketch11.addConstraint(Sketcher.Constraint("Coincident", 6, 2, 7, 1))
sketch11.addConstraint(Sketcher.Constraint("Coincident", 7, 2, 8, 1))
sketch11.addConstraint(Sketcher.Constraint("Coincident", 8, 2, 9, 1))
sketch11.addConstraint(Sketcher.Constraint("Coincident", 9, 2, 10, 1))
sketch11.addConstraint(Sketcher.Constraint("Coincident", 10, 2, 11, 1))
sketch11.addConstraint(Sketcher.Constraint("Coincident", 11, 2, 12, 1))
sketch11.addConstraint(Sketcher.Constraint("Coincident", 12, 2, 13, 1))
sketch11.addConstraint(Sketcher.Constraint("Coincident", 13, 2, 14, 1))
sketch11.addConstraint(Sketcher.Constraint("Coincident", 14, 2, 15, 1))
sketch11.addConstraint(Sketcher.Constraint("Coincident", 15, 2, 0, 1))
sketch11.addConstraint(Sketcher.Constraint("Coincident", 16, 1, 17, 1))
sketch11.addConstraint(Sketcher.Constraint("Coincident", 17, 2, 18, 2))
sketch11.addConstraint(Sketcher.Constraint("Coincident", 18, 1, 19, 1))
sketch11.addConstraint(Sketcher.Constraint("Coincident", 19, 2, 20, 2))
sketch11.addConstraint(Sketcher.Constraint("Coincident", 20, 1, 21, 1))
sketch11.addConstraint(Sketcher.Constraint("Coincident", 21, 2, 22, 2))
sketch11.addConstraint(Sketcher.Constraint("Coincident", 22, 1, 23, 1))
sketch11.addConstraint(Sketcher.Constraint("Coincident", 23, 2, 16, 2))
sketch11.addConstraint(Sketcher.Constraint("Vertical", 0))
sketch11.addConstraint(Sketcher.Constraint("Horizontal", 1))
sketch11.addConstraint(Sketcher.Constraint("Vertical", 2))
sketch11.addConstraint(Sketcher.Constraint("Horizontal", 4))
sketch11.addConstraint(Sketcher.Constraint("Vertical", 5))
sketch11.addConstraint(Sketcher.Constraint("Horizontal", 6))
sketch11.addConstraint(Sketcher.Constraint("Vertical", 8))
sketch11.addConstraint(Sketcher.Constraint("Horizontal", 9))
sketch11.addConstraint(Sketcher.Constraint("Vertical", 10))
sketch11.addConstraint(Sketcher.Constraint("Horizontal", 12))
sketch11.addConstraint(Sketcher.Constraint("Vertical", 13))
sketch11.addConstraint(Sketcher.Constraint("Horizontal", 14))
sketch11.addConstraint(Sketcher.Constraint("Coincident", 3, 3, -1, 1))
sketch11.addConstraint(Sketcher.Constraint("Coincident", 7, 3, -1, 1))
sketch11.addConstraint(Sketcher.Constraint("Coincident", 11, 3, -1, 1))
sketch11.addConstraint(Sketcher.Constraint("Coincident", 15, 3, -1, 1))
sketch11.addConstraint(Sketcher.Constraint("Coincident", 16, 3, -1, 1))
sketch11.addConstraint(Sketcher.Constraint("Coincident", 18, 3, -1, 1))
sketch11.addConstraint(Sketcher.Constraint("Coincident", 20, 3, -1, 1))
sketch11.addConstraint(Sketcher.Constraint("Coincident", 22, 3, -1, 1))
sketch11.addConstraint(Sketcher.Constraint("Equal", 3, 7))
sketch11.addConstraint(Sketcher.Constraint("Equal", 7, 11))
sketch11.addConstraint(Sketcher.Constraint("Equal", 11, 15))
sketch11.addConstraint(Sketcher.Constraint("Equal", 16, 20))
sketch11.addConstraint(Sketcher.Constraint("Equal", 18, 22))
sketch11.addConstraint(Sketcher.Constraint("Symmetric", 0, 2, 8, 2, -1, 1))
sketch11.addConstraint(Sketcher.Constraint("Symmetric", 4, 2, 12, 2, -1, 1))
sketch11.addConstraint(Sketcher.Constraint("Parallel", 19, 23))
sketch11.addConstraint(Sketcher.Constraint("Horizontal", 7, 2, 10, 2))
sketch11.addConstraint(Sketcher.Constraint("Horizontal", 6, 2, 11, 2))
sketch11.addConstraint(Sketcher.Constraint("Horizontal", 4, 2, 13, 2))
sketch11.addConstraint(Sketcher.Constraint("Horizontal", 2, 2, 15, 2))
sketch11.addConstraint(Sketcher.Constraint("Horizontal", 17, 2, 22, 1))
sketch11.addConstraint(Sketcher.Constraint("Horizontal", 16, 1, 23, 2))
sketch11.addConstraint(Sketcher.Constraint("Vertical", 17, 2, 18, 1))
sketch11.addConstraint(Sketcher.Constraint("Equal", 14, 0))
sketch11.addConstraint(Sketcher.Constraint("Equal", 9, 5))
sketch11.addConstraint(Sketcher.Constraint("Radius", 3, 14.2))
sketch11.addConstraint(Sketcher.Constraint("Radius", 16, 12.6))
sketch11.addConstraint(Sketcher.Constraint("DistanceX", 1, 2, 1, 1, 5.0))
sketch11.addConstraint(Sketcher.Constraint("Angle", 17, Q("25 deg")))
sketch11.addConstraint(Sketcher.Constraint("Radius", 18, 11.15))
sketch11.addConstraint(Sketcher.Constraint("DistanceY", -1, 1, 0, 2, 18.0))
sketch11.addConstraint(Sketcher.Constraint("DistanceX", 16, 1, -1, 1, 11.419478))
sketch11.addConstraint(Sketcher.Constraint("DistanceX", -1, 1, 21, 2, 9.903282))
sketch11.addConstraint(Sketcher.Constraint("DistanceX", 21, 2, 20, 1, 1.287871))
sketch11.setExpression("Constraints[61]", "Params.sketch11_radius")
sketch11.setExpression("Constraints[62]", "Params.sketch11_radius2")
sketch11.setExpression("Constraints[63]", "Params.sketch11_width")
sketch11.setExpression("Constraints[65]", "Params.sketch11_radius3")
pad6 = body.newObject("PartDesign::Pad", "Pad005")
pad6.Profile = sketch11
pad6.setExpression("Length", "Params.pad6_length")

doc.recompute()
